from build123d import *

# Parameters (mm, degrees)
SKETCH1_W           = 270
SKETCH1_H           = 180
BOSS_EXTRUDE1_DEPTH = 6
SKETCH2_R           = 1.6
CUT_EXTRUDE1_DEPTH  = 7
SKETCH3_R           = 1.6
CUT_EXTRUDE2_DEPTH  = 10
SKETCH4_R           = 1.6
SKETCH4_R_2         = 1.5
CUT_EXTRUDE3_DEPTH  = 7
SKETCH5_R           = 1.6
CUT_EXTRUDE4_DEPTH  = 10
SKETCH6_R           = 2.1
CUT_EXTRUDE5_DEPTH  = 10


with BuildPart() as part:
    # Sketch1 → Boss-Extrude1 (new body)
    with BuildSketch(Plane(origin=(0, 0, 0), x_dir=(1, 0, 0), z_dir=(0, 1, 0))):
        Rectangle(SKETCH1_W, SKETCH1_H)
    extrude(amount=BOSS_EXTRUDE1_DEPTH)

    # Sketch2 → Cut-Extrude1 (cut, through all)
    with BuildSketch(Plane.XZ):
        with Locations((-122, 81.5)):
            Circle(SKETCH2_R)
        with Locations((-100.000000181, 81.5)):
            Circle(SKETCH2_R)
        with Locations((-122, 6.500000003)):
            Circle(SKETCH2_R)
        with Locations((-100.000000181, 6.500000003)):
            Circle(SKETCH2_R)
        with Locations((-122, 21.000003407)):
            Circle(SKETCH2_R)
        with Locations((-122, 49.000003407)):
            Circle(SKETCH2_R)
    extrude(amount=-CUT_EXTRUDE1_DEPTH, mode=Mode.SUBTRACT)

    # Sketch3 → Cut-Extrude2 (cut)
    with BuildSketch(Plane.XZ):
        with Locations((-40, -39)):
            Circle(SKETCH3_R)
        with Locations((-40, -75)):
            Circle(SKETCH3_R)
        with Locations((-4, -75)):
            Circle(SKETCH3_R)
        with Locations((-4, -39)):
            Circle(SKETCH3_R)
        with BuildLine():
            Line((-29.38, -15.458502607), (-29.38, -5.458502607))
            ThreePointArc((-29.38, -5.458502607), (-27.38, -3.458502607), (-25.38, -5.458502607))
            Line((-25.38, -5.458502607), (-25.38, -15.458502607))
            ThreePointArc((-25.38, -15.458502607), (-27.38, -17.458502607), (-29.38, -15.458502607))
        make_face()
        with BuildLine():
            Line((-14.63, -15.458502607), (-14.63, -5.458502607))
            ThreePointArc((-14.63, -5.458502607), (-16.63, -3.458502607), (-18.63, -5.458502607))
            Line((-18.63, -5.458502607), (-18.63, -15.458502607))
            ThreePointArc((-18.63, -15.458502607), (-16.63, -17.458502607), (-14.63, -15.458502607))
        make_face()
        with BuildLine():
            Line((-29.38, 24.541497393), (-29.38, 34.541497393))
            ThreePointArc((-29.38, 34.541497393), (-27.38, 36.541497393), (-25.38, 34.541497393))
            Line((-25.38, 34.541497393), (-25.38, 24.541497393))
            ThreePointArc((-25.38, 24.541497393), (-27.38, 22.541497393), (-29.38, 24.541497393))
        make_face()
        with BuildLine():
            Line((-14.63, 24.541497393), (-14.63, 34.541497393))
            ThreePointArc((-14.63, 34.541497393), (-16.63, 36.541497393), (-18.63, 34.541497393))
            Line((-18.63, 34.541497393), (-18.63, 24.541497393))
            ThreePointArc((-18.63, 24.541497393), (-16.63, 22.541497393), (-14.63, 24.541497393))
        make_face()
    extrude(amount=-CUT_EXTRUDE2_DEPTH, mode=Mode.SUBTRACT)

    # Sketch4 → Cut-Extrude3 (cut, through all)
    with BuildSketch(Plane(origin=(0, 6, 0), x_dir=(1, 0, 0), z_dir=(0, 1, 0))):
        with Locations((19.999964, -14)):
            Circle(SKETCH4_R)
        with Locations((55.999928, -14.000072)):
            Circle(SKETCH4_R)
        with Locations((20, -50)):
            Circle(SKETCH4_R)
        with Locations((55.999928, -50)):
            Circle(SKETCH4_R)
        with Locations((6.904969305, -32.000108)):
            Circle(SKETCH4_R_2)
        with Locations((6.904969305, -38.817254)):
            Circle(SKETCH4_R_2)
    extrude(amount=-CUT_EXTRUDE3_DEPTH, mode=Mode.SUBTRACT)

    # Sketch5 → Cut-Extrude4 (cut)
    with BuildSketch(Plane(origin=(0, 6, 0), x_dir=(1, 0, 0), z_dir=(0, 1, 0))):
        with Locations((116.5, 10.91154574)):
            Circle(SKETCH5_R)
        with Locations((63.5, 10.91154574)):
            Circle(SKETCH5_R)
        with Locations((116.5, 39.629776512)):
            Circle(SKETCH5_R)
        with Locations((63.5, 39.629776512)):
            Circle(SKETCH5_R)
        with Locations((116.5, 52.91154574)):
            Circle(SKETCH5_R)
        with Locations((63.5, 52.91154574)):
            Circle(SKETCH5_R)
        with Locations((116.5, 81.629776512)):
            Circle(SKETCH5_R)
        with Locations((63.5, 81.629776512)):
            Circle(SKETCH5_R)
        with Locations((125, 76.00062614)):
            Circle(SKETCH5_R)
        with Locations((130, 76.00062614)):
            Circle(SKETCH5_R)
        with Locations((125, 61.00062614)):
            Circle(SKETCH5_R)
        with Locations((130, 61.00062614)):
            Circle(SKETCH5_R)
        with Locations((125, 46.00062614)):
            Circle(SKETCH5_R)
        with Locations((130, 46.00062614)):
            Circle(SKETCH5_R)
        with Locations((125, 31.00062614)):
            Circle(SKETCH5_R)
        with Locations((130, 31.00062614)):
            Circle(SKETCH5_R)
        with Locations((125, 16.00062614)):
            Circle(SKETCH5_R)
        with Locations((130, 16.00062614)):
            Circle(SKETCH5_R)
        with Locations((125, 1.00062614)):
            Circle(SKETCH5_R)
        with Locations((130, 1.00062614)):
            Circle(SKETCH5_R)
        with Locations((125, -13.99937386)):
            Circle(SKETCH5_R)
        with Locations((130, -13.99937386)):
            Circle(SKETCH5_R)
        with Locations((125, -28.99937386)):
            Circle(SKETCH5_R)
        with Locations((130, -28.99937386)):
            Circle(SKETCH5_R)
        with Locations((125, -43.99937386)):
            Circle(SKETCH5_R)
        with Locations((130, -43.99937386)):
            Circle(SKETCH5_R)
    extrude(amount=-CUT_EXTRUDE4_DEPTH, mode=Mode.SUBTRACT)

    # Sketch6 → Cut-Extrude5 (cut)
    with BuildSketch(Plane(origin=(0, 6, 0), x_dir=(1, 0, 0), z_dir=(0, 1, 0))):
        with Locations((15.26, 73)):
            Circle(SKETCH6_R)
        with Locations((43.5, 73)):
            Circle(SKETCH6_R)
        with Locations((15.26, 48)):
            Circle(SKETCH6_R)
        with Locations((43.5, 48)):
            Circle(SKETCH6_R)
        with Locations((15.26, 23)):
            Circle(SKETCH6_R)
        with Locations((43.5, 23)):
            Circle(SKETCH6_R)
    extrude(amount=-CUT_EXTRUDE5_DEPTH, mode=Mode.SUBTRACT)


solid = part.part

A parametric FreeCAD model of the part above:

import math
import FreeCAD as App
import Part
import Sketcher
from FreeCAD import Vector
Q = App.Units.Quantity

doc = App.newDocument("Part")
params = doc.addObject("Spreadsheet::Sheet", "Params")
for row, (alias, value) in enumerate([
    ("sketch1_width", "270 mm"),
    ("sketch1_height", "180 mm"),
    ("pad1_length", "6 mm"),
    ("sketch2_diameter", "3.2 mm"),
    ("sketch3_radius", "2 mm"),
    ("sketch3_diameter", "3.2 mm"),
    ("sketch3_height", "10 mm"),
    ("pocket2_length", "10 mm"),
    ("sketch4_diameter", "3 mm"),
    ("sketch4_diameter2", "3.2 mm"),
    ("sketch5_diameter", "3.2 mm"),
    ("pocket4_length", "10 mm"),
    ("sketch6_diameter", "4.2 mm"),
    ("pocket5_length", "10 mm"),
], start=1):
    params.set(f"A{row}", alias)
    params.set(f"B{row}", "=" + value)
    params.setAlias(f"B{row}", alias)

body = doc.addObject("PartDesign::Body", "Body")

# Sketch on XZ plane
sketch1 = body.newObject("Sketcher::SketchObject", "Sketch")
sketch1.AttachmentSupport = (doc.getObject("XZ_Plane"), [""])
sketch1.MapMode = "FlatFace"
sketch1.addGeometry([
    Part.LineSegment(Vector(-135, -90, 0), Vector(-135, 90, 0)),
    Part.LineSegment(Vector(-135, 90, 0), Vector(135, 90, 0)),
    Part.LineSegment(Vector(135, 90, 0), Vector(135, -90, 0)),
    Part.LineSegment(Vector(135, -90, 0), Vector(-135, -90, 0)),
], False)
sketch1.addConstraint([
    Sketcher.Constraint("Coincident", 0, 2, 1, 1),
    Sketcher.Constraint("Coincident", 1, 2, 2, 1),
    Sketcher.Constraint("Coincident", 2, 2, 3, 1),
    Sketcher.Constraint("Coincident", 3, 2, 0, 1),
    Sketcher.Constraint("Vertical", 0),
    Sketcher.Constraint("Horizontal", 1),
    Sketcher.Constraint("Vertical", 2),
    Sketcher.Constraint("Horizontal", 3),
    Sketcher.Constraint("Symmetric", 0, 2, 2, 2, -1, 1),
    Sketcher.Constraint("DistanceX", 1, 1, 1, 2, Q("270 mm")),
    Sketcher.Constraint("DistanceY", 0, 1, 0, 2, Q("180 mm")),
])
sketch1.setExpression("Constraints[9]", "Params.sketch1_width")
sketch1.setExpression("Constraints[10]", "Params.sketch1_height")
pad1 = body.newObject("PartDesign::Pad", "Pad")
pad1.Profile = sketch1
pad1.setExpression("Length", "Params.pad1_length")
pad1.Reversed = True

# Sketch on XZ plane
sketch2 = body.newObject("Sketcher::SketchObject", "Sketch001")
sketch2.AttachmentSupport = (doc.getObject("XZ_Plane"), [""])
sketch2.MapMode = "FlatFace"
sketch2.addGeometry([
    Part.Circle(Vector(-122, 81.5, 0), Vector(0, 0, 1), 1.6),  # 0
    Part.Circle(Vector(-100, 81.5, 0), Vector(0, 0, 1), 1.6),  # 1
    Part.Circle(Vector(-122, 6.5, 0), Vector(0, 0, 1), 1.6),  # 2
    Part.Circle(Vector(-100, 6.5, 0), Vector(0, 0, 1), 1.6),  # 3
    Part.Circle(Vector(-122, 21.000003, 0), Vector(0, 0, 1), 1.6),  # 4
    Part.Circle(Vector(-122, 49.000003, 0), Vector(0, 0, 1), 1.6),  # 5
], False)
sketch2.addConstraint([
    Sketcher.Constraint("Equal", 0, 1),
    Sketcher.Constraint("Equal", 1, 2),
    Sketcher.Constraint("Equal", 2, 3),
    Sketcher.Constraint("Equal", 3, 4),
    Sketcher.Constraint("Equal", 4, 5),
    Sketcher.Constraint("Horizontal", 0, 3, 1, 3),
    Sketcher.Constraint("Horizontal", 2, 3, 3, 3),
    Sketcher.Constraint("Vertical", 0, 3, 2, 3),
    Sketcher.Constraint("Vertical", 1, 3, 3, 3),
    Sketcher.Constraint("Vertical", 2, 3, 4, 3),
    Sketcher.Constraint("Vertical", 4, 3, 5, 3),
    Sketcher.Constraint("Diameter", 0, Q("3.2 mm")),
    Sketcher.Constraint("DistanceX", 0, 3, -1, 1, Q("122 mm")),
    Sketcher.Constraint("DistanceX", 1, 3, -1, 1, Q("100 mm")),
    Sketcher.Constraint("DistanceY", 2, 3, 0, 3, Q("75 mm")),
    Sketcher.Constraint("DistanceY", 4, 3, 5, 3, Q("28 mm")),
    Sketcher.Constraint("DistanceY", -1, 1, 0, 3, Q("81.5 mm")),
    Sketcher.Constraint("DistanceY", -1, 1, 4, 3, Q("21.000003 mm")),
])
sketch2.setExpression("Constraints[11]", "Params.sketch2_diameter")
pocket1 = body.newObject("PartDesign::Pocket", "Pocket")
pocket1.Profile = sketch2
pocket1.Type = "ThroughAll"

# Sketch on XZ plane
sketch3 = body.newObject("Sketcher::SketchObject", "Sketch002")
sketch3.AttachmentSupport = (doc.getObject("XZ_Plane"), [""])
sketch3.MapMode = "FlatFace"
sketch3.addGeometry([
    Part.Circle(Vector(-40, -39, 0), Vector(0, 0, 1), 1.6),  # 0
    Part.Circle(Vector(-40, -75, 0), Vector(0, 0, 1), 1.6),  # 1
    Part.Circle(Vector(-4, -75, 0), Vector(0, 0, 1), 1.6),  # 2
    Part.Circle(Vector(-4, -39, 0), Vector(0, 0, 1), 1.6),  # 3
    Part.LineSegment(Vector(-29.38, -5.458503, 0), Vector(-29.38, -15.458503, 0)),  # 4
    Part.ArcOfCircle(Part.Circle(Vector(-27.38, -15.458503, 0), Vector(0, 0, 1), 2), math.radians(180), math.radians(360)),  # 5
    Part.LineSegment(Vector(-25.38, -15.458503, 0), Vector(-25.38, -5.458503, 0)),  # 6
    Part.ArcOfCircle(Part.Circle(Vector(-27.38, -5.458503, 0), Vector(0, 0, 1), 2), math.radians(0), math.radians(180)),  # 7
    Part.LineSegment(Vector(-14.63, -15.458503, 0), Vector(-14.63, -5.458503, 0)),  # 8
    Part.ArcOfCircle(Part.Circle(Vector(-16.63, -5.458503, 0), Vector(0, 0, 1), 2), math.radians(0), math.radians(180)),  # 9
    Part.LineSegment(Vector(-18.63, -5.458503, 0), Vector(-18.63, -15.458503, 0)),  # 10
    Part.ArcOfCircle(Part.Circle(Vector(-16.63, -15.458503, 0), Vector(0, 0, 1), 2), math.radians(180), math.radians(360)),  # 11
    Part.LineSegment(Vector(-29.38, 34.541497, 0), Vector(-29.38, 24.541497, 0)),  # 12
    Part.ArcOfCircle(Part.Circle(Vector(-27.38, 24.541497, 0), Vector(0, 0, 1), 2), math.radians(180), math.radians(360)),  # 13
    Part.LineSegment(Vector(-25.38, 24.541497, 0), Vector(-25.38, 34.541497, 0)),  # 14
    Part.ArcOfCircle(Part.Circle(Vector(-27.38, 34.541497, 0), Vector(0, 0, 1), 2), math.radians(0), math.radians(180)),  # 15
    Part.LineSegment(Vector(-14.63, 24.541497, 0), Vector(-14.63, 34.541497, 0)),  # 16
    Part.ArcOfCircle(Part.Circle(Vector(-16.63, 34.541497, 0), Vector(0, 0, 1), 2), math.radians(0), math.radians(180)),  # 17
    Part.LineSegment(Vector(-18.63, 34.541497, 0), Vector(-18.63, 24.541497, 0)),  # 18
    Part.ArcOfCircle(Part.Circle(Vector(-16.63, 24.541497, 0), Vector(0, 0, 1), 2), math.radians(180), math.radians(360)),  # 19
], False)
sketch3.addConstraint([
    Sketcher.Constraint("Tangent", 4, 2, 5, 1),
    Sketcher.Constraint("Tangent", 5, 2, 6, 1),
    Sketcher.Constraint("Tangent", 6, 2, 7, 1),
    Sketcher.Constraint("Tangent", 7, 2, 4, 1),
    Sketcher.Constraint("Tangent", 8, 2, 9, 1),
    Sketcher.Constraint("Tangent", 9, 2, 10, 1),
    Sketcher.Constraint("Tangent", 10, 2, 11, 1),
    Sketcher.Constraint("Tangent", 11, 2, 8, 1),
    Sketcher.Constraint("Tangent", 12, 2, 13, 1),
    Sketcher.Constraint("Tangent", 13, 2, 14, 1),
    Sketcher.Constraint("Tangent", 14, 2, 15, 1),
    Sketcher.Constraint("Tangent", 15, 2, 12, 1),
    Sketcher.Constraint("Tangent", 16, 2, 17, 1),
    Sketcher.Constraint("Tangent", 17, 2, 18, 1),
    Sketcher.Constraint("Tangent", 18, 2, 19, 1),
    Sketcher.Constraint("Tangent", 19, 2, 16, 1),
    Sketcher.Constraint("Vertical", 4),
    Sketcher.Constraint("Vertical", 6),
    Sketcher.Constraint("Vertical", 8),
    Sketcher.Constraint("Vertical", 10),
    Sketcher.Constraint("Vertical", 12),
    Sketcher.Constraint("Vertical", 14),
    Sketcher.Constraint("Vertical", 16),
    Sketcher.Constraint("Vertical", 18),
    Sketcher.Constraint("Equal", 0, 1),
    Sketcher.Constraint("Equal", 1, 2),
    Sketcher.Constraint("Equal", 2, 3),
    Sketcher.Constraint("Equal", 7, 9),
    Sketcher.Constraint("Equal", 11, 13),
    Sketcher.Constraint("Equal", 15, 17),
    Sketcher.Constraint("Horizontal", 1, 3, 2, 3),
    Sketcher.Constraint("Horizontal", 0, 3, 3, 3),
    Sketcher.Constraint("Horizontal", 7, 3, 9, 3),
    Sketcher.Constraint("Horizontal", 5, 3, 11, 3),
    Sketcher.Constraint("Horizontal", 15, 3, 17, 3),
    Sketcher.Constraint("Horizontal", 13, 3, 19, 3),
    Sketcher.Constraint("Vertical", 0, 3, 1, 3),
    Sketcher.Constraint("Vertical", 2, 3, 3, 3),
    Sketcher.Constraint("Vertical", 7, 3, 13, 3),
    Sketcher.Constraint("Vertical", 11, 3, 17, 3),
    Sketcher.Constraint("Equal", 10, 12),
    Sketcher.Constraint("Radius", 5, Q("2 mm")),
    Sketcher.Constraint("Diameter", 0, Q("3.2 mm")),
    Sketcher.Constraint("DistanceY", 4, 2, 4, 1, Q("10 mm")),
    Sketcher.Constraint("DistanceX", 0, 3, -1, 1, Q("40 mm")),
    Sketcher.Constraint("DistanceY", 0, 3, -1, 1, Q("39 mm")),
    Sketcher.Constraint("DistanceY", 1, 3, -1, 1, Q("75 mm")),
    Sketcher.Constraint("DistanceX", 2, 3, -1, 1, Q("4 mm")),
    Sketcher.Constraint("DistanceY", 7, 3, 13, 3, Q("30 mm")),
    Sketcher.Constraint("DistanceX", 5, 3, -1, 1, Q("27.38 mm")),
    Sketcher.Constraint("DistanceX", 9, 3, -1, 1, Q("16.63 mm")),
    Sketcher.Constraint("DistanceY", 5, 3, -1, 1, Q("15.458503 mm")),
])
sketch3.setExpression("Constraints[41]", "Params.sketch3_radius")
sketch3.setExpression("Constraints[42]", "Params.sketch3_diameter")
sketch3.setExpression("Constraints[43]", "Params.sketch3_height")
pocket2 = body.newObject("PartDesign::Pocket", "Pocket001")
pocket2.Profile = sketch3
pocket2.setExpression("Length", "Params.pocket2_length")

# Sketch on XZ plane
sketch4 = body.newObject("Sketcher::SketchObject", "Sketch003")
sketch4.AttachmentSupport = (doc.getObject("XZ_Plane"), [""])
sketch4.MapMode = "FlatFace"
sketch4.AttachmentOffset = App.Placement(Vector(0, 0, -6), App.Rotation())
sketch4.addGeometry([
    Part.Circle(Vector(19.999964, 14, 0), Vector(0, 0, 1), 1.6),  # 0
    Part.Circle(Vector(55.999928, 14.000072, 0), Vector(0, 0, 1), 1.6),  # 1
    Part.Circle(Vector(20, 50, 0), Vector(0, 0, 1), 1.6),  # 2
    Part.Circle(Vector(55.999928, 50, 0), Vector(0, 0, 1), 1.6),  # 3
    Part.Circle(Vector(6.904969, 32.000108, 0), Vector(0, 0, 1), 1.5),  # 4
    Part.Circle(Vector(6.904969, 38.817254, 0), Vector(0, 0, 1), 1.5),  # 5
], False)
sketch4.addConstraint([
    Sketcher.Constraint("Equal", 0, 1),
    Sketcher.Constraint("Equal", 1, 2),
    Sketcher.Constraint("Equal", 2, 3),
    Sketcher.Constraint("Equal", 4, 5),
    Sketcher.Constraint("Horizontal", 2, 3, 3, 3),
    Sketcher.Constraint("Vertical", 1, 3, 3, 3),
    Sketcher.Constraint("Vertical", 4, 3, 5, 3),
    Sketcher.Constraint("Diameter", 4, Q("3 mm")),
    Sketcher.Constraint("Diameter", 0, Q("3.2 mm")),
    Sketcher.Constraint("DistanceY", -1, 1, 0, 3, Q("14 mm")),
    Sketcher.Constraint("DistanceX", -1, 1, 2, 3, Q("20 mm")),
    Sketcher.Constraint("DistanceY", -1, 1, 2, 3, Q("50 mm")),
    Sketcher.Constraint("DistanceX", -1, 1, 4, 3, Q("6.904969 mm")),
    Sketcher.Constraint("DistanceX", 4, 3, 3, 3, Q("49.094959 mm")),
    Sketcher.Constraint("DistanceY", 1, 3, 5, 3, Q("24.817182 mm")),
    Sketcher.Constraint("DistanceX", -1, 1, 0, 3, Q("19.999964 mm")),
    Sketcher.Constraint("DistanceY", -1, 1, 1, 3, Q("14.000072 mm")),
    Sketcher.Constraint("DistanceY", -1, 1, 4, 3, Q("32.000108 mm")),
])
sketch4.setExpression("Constraints[7]", "Params.sketch4_diameter")
sketch4.setExpression("Constraints[8]", "Params.sketch4_diameter2")
pocket3 = body.newObject("PartDesign::Pocket", "Pocket002")
pocket3.Profile = sketch4
pocket3.Type = "ThroughAll"
pocket3.Reversed = True

# Sketch on XZ plane
sketch5 = body.newObject("Sketcher::SketchObject", "Sketch004")
sketch5.AttachmentSupport = (doc.getObject("XZ_Plane"), [""])
sketch5.MapMode = "FlatFace"
sketch5.AttachmentOffset = App.Placement(Vector(0, 0, -6), App.Rotation())
sketch5.addGeometry([
    Part.Circle(Vector(116.5, -10.911546, 0), Vector(0, 0, 1), 1.6),  # 0
    Part.Circle(Vector(63.5, -10.911546, 0), Vector(0, 0, 1), 1.6),  # 1
    Part.Circle(Vector(116.5, -39.629777, 0), Vector(0, 0, 1), 1.6),  # 2
    Part.Circle(Vector(63.5, -39.629777, 0), Vector(0, 0, 1), 1.6),  # 3
    Part.Circle(Vector(116.5, -52.911546, 0), Vector(0, 0, 1), 1.6),  # 4
    Part.Circle(Vector(63.5, -52.911546, 0), Vector(0, 0, 1), 1.6),  # 5
    Part.Circle(Vector(116.5, -81.629777, 0), Vector(0, 0, 1), 1.6),  # 6
    Part.Circle(Vector(63.5, -81.629777, 0), Vector(0, 0, 1), 1.6),  # 7
    Part.Circle(Vector(125, -76.000626, 0), Vector(0, 0, 1), 1.6),  # 8
    Part.Circle(Vector(130, -76.000626, 0), Vector(0, 0, 1), 1.6),  # 9
    Part.Circle(Vector(125, -61.000626, 0), Vector(0, 0, 1), 1.6),  # 10
    Part.Circle(Vector(130, -61.000626, 0), Vector(0, 0, 1), 1.6),  # 11
    Part.Circle(Vector(125, -46.000626, 0), Vector(0, 0, 1), 1.6),  # 12
    Part.Circle(Vector(130, -46.000626, 0), Vector(0, 0, 1), 1.6),  # 13
    Part.Circle(Vector(125, -31.000626, 0), Vector(0, 0, 1), 1.6),  # 14
    Part.Circle(Vector(130, -31.000626, 0), Vector(0, 0, 1), 1.6),  # 15
    Part.Circle(Vector(125, -16.000626, 0), Vector(0, 0, 1), 1.6),  # 16
    Part.Circle(Vector(130, -16.000626, 0), Vector(0, 0, 1), 1.6),  # 17
    Part.Circle(Vector(125, -1.000626, 0), Vector(0, 0, 1), 1.6),  # 18
    Part.Circle(Vector(130, -1.000626, 0), Vector(0, 0, 1), 1.6),  # 19
    Part.Circle(Vector(125, 13.999374, 0), Vector(0, 0, 1), 1.6),  # 20
    Part.Circle(Vector(130, 13.999374, 0), Vector(0, 0, 1), 1.6),  # 21
    Part.Circle(Vector(125, 28.999374, 0), Vector(0, 0, 1), 1.6),  # 22
    Part.Circle(Vector(130, 28.999374, 0), Vector(0, 0, 1), 1.6),  # 23
    Part.Circle(Vector(125, 43.999374, 0), Vector(0, 0, 1), 1.6),  # 24
    Part.Circle(Vector(130, 43.999374, 0), Vector(0, 0, 1), 1.6),  # 25
], False)
sketch5.addConstraint([
    Sketcher.Constraint("Equal", 0, 1),
    Sketcher.Constraint("Equal", 1, 2),
    Sketcher.Constraint("Equal", 2, 3),
    Sketcher.Constraint("Equal", 3, 4),
    Sketcher.Constraint("Equal", 4, 5),
    Sketcher.Constraint("Equal", 5, 6),
    Sketcher.Constraint("Equal", 6, 7),
    Sketcher.Constraint("Equal", 7, 8),
    Sketcher.Constraint("Equal", 8, 9),
    Sketcher.Constraint("Equal", 9, 10),
    Sketcher.Constraint("Equal", 10, 11),
    Sketcher.Constraint("Equal", 11, 12),
    Sketcher.Constraint("Equal", 12, 13),
    Sketcher.Constraint("Equal", 13, 14),
    Sketcher.Constraint("Equal", 14, 15),
    Sketcher.Constraint("Equal", 15, 16),
    Sketcher.Constraint("Equal", 16, 17),
    Sketcher.Constraint("Equal", 17, 18),
    Sketcher.Constraint("Equal", 18, 19),
    Sketcher.Constraint("Equal", 19, 20),
    Sketcher.Constraint("Equal", 20, 21),
    Sketcher.Constraint("Equal", 21, 22),
    Sketcher.Constraint("Equal", 22, 23),
    Sketcher.Constraint("Equal", 23, 24),
    Sketcher.Constraint("Equal", 24, 25),
    Sketcher.Constraint("Horizontal", 0, 3, 1, 3),
    Sketcher.Constraint("Horizontal", 2, 3, 3, 3),
    Sketcher.Constraint("Horizontal", 4, 3, 5, 3),
    Sketcher.Constraint("Horizontal", 6, 3, 7, 3),
    Sketcher.Constraint("Horizontal", 8, 3, 9, 3),
    Sketcher.Constraint("Horizontal", 10, 3, 11, 3),
    Sketcher.Constraint("Horizontal", 12, 3, 13, 3),
    Sketcher.Constraint("Horizontal", 14, 3, 15, 3),
    Sketcher.Constraint("Horizontal", 16, 3, 17, 3),
    Sketcher.Constraint("Horizontal", 18, 3, 19, 3),
    Sketcher.Constraint("Horizontal", 20, 3, 21, 3),
    Sketcher.Constraint("Horizontal", 22, 3, 23, 3),
    Sketcher.Constraint("Horizontal", 24, 3, 25, 3),
    Sketcher.Constraint("Vertical", 0, 3, 2, 3),
    Sketcher.Constraint("Vertical", 1, 3, 3, 3),
    Sketcher.Constraint("Vertical", 2, 3, 4, 3),
    Sketcher.Constraint("Vertical", 3, 3, 5, 3),
    Sketcher.Constraint("Vertical", 4, 3, 6, 3),
    Sketcher.Constraint("Vertical", 5, 3, 7, 3),
    Sketcher.Constraint("Vertical", 8, 3, 10, 3),
    Sketcher.Constraint("Vertical", 9, 3, 11, 3),
    Sketcher.Constraint("Vertical", 10, 3, 12, 3),
    Sketcher.Constraint("Vertical", 11, 3, 13, 3),
    Sketcher.Constraint("Vertical", 12, 3, 14, 3),
    Sketcher.Constraint("Vertical", 13, 3, 15, 3),
    Sketcher.Constraint("Vertical", 14, 3, 16, 3),
    Sketcher.Constraint("Vertical", 15, 3, 17, 3),
    Sketcher.Constraint("Vertical", 16, 3, 18, 3),
    Sketcher.Constraint("Vertical", 17, 3, 19, 3),
    Sketcher.Constraint("Vertical", 18, 3, 20, 3),
    Sketcher.Constraint("Vertical", 19, 3, 21, 3),
    Sketcher.Constraint("Vertical", 20, 3, 22, 3),
    Sketcher.Constraint("Vertical", 21, 3, 23, 3),
    Sketcher.Constraint("Vertical", 22, 3, 24, 3),
    Sketcher.Constraint("Vertical", 23, 3, 25, 3),
    Sketcher.Constraint("Diameter", 0, Q("3.2 mm")),
    Sketcher.Constraint("DistanceX", -1, 1, 8, 3, Q("125 mm")),
    Sketcher.Constraint("DistanceX", -1, 1, 9, 3, Q("130 mm")),
    Sketcher.Constraint("DistanceX", 1, 3, 0, 3, Q("53 mm")),
    Sketcher.Constraint("DistanceY", 4, 3, 0, 3, Q("42 mm")),
    Sketcher.Constraint("DistanceY", 6, 3, 2, 3, Q("42 mm")),
    Sketcher.Constraint("DistanceY", 8, 3, 10, 3, Q("15 mm")),
    Sketcher.Constraint("DistanceY", 10, 3, 12, 3, Q("15 mm")),
    Sketcher.Constraint("DistanceY", 12, 3, 14, 3, Q("15 mm")),
    Sketcher.Constraint("DistanceY", 14, 3, 16, 3, Q("15 mm")),
    Sketcher.Constraint("DistanceY", 16, 3, 18, 3, Q("15 mm")),
    Sketcher.Constraint("DistanceY", 18, 3, 20, 3, Q("15 mm")),
    Sketcher.Constraint("DistanceY", 20, 3, 22, 3, Q("15 mm")),
    Sketcher.Constraint("DistanceY", 22, 3, 24, 3, Q("15 mm")),
    Sketcher.Constraint("DistanceX", -1, 1, 0, 3, Q("116.5 mm")),
    Sketcher.Constraint("DistanceY", 2, 3, 0, 3, Q("28.718231 mm")),
    Sketcher.Constraint("DistanceY", 6, 3, 8, 3, Q("5.62915 mm")),
    Sketcher.Constraint("DistanceY", 0, 3, -1, 1, Q("10.911546 mm")),
])
sketch5.setExpression("Constraints[60]", "Params.sketch5_diameter")
pocket4 = body.newObject("PartDesign::Pocket", "Pocket003")
pocket4.Profile = sketch5
pocket4.setExpression("Length", "Params.pocket4_length")
pocket4.Reversed = True

# Sketch on XZ plane
sketch6 = body.newObject("Sketcher::SketchObject", "Sketch005")
sketch6.AttachmentSupport = (doc.getObject("XZ_Plane"), [""])
sketch6.MapMode = "FlatFace"
sketch6.AttachmentOffset = App.Placement(Vector(0, 0, -6), App.Rotation())
sketch6.addGeometry([
    Part.Circle(Vector(15.26, -73, 0), Vector(0, 0, 1), 2.1),  # 0
    Part.Circle(Vector(43.5, -73, 0), Vector(0, 0, 1), 2.1),  # 1
    Part.Circle(Vector(15.26, -48, 0), Vector(0, 0, 1), 2.1),  # 2
    Part.Circle(Vector(43.5, -48, 0), Vector(0, 0, 1), 2.1),  # 3
    Part.Circle(Vector(15.26, -23, 0), Vector(0, 0, 1), 2.1),  # 4
    Part.Circle(Vector(43.5, -23, 0), Vector(0, 0, 1), 2.1),  # 5
], False)
sketch6.addConstraint([
    Sketcher.Constraint("Equal", 0, 1),
    Sketcher.Constraint("Equal", 1, 2),
    Sketcher.Constraint("Equal", 2, 3),
    Sketcher.Constraint("Equal", 3, 4),
    Sketcher.Constraint("Equal", 4, 5),
    Sketcher.Constraint("Horizontal", 0, 3, 1, 3),
    Sketcher.Constraint("Horizontal", 2, 3, 3, 3),
    Sketcher.Constraint("Horizontal", 4, 3, 5, 3),
    Sketcher.Constraint("Vertical", 0, 3, 2, 3),
    Sketcher.Constraint("Vertical", 1, 3, 3, 3),
    Sketcher.Constraint("Vertical", 2, 3, 4, 3),
    Sketcher.Constraint("Vertical", 3, 3, 5, 3),
    Sketcher.Constraint("Diameter", 0, Q("4.2 mm")),
    Sketcher.Constraint("DistanceY", 0, 3, -1, 1, Q("73 mm")),
    Sketcher.Constraint("DistanceY", 2, 3, -1, 1, Q("48 mm")),
    Sketcher.Constraint("DistanceY", 4, 3, -1, 1, Q("23 mm")),
    Sketcher.Constraint("DistanceX", -1, 1, 1, 3, Q("43.5 mm")),
    Sketcher.Constraint("DistanceX", -1, 1, 0, 3, Q("15.26 mm")),
])
sketch6.setExpression("Constraints[12]", "Params.sketch6_diameter")
pocket5 = body.newObject("PartDesign::Pocket", "Pocket004")
pocket5.Profile = sketch6
pocket5.setExpression("Length", "Params.pocket5_length")
pocket5.Reversed = True

doc.recompute()
